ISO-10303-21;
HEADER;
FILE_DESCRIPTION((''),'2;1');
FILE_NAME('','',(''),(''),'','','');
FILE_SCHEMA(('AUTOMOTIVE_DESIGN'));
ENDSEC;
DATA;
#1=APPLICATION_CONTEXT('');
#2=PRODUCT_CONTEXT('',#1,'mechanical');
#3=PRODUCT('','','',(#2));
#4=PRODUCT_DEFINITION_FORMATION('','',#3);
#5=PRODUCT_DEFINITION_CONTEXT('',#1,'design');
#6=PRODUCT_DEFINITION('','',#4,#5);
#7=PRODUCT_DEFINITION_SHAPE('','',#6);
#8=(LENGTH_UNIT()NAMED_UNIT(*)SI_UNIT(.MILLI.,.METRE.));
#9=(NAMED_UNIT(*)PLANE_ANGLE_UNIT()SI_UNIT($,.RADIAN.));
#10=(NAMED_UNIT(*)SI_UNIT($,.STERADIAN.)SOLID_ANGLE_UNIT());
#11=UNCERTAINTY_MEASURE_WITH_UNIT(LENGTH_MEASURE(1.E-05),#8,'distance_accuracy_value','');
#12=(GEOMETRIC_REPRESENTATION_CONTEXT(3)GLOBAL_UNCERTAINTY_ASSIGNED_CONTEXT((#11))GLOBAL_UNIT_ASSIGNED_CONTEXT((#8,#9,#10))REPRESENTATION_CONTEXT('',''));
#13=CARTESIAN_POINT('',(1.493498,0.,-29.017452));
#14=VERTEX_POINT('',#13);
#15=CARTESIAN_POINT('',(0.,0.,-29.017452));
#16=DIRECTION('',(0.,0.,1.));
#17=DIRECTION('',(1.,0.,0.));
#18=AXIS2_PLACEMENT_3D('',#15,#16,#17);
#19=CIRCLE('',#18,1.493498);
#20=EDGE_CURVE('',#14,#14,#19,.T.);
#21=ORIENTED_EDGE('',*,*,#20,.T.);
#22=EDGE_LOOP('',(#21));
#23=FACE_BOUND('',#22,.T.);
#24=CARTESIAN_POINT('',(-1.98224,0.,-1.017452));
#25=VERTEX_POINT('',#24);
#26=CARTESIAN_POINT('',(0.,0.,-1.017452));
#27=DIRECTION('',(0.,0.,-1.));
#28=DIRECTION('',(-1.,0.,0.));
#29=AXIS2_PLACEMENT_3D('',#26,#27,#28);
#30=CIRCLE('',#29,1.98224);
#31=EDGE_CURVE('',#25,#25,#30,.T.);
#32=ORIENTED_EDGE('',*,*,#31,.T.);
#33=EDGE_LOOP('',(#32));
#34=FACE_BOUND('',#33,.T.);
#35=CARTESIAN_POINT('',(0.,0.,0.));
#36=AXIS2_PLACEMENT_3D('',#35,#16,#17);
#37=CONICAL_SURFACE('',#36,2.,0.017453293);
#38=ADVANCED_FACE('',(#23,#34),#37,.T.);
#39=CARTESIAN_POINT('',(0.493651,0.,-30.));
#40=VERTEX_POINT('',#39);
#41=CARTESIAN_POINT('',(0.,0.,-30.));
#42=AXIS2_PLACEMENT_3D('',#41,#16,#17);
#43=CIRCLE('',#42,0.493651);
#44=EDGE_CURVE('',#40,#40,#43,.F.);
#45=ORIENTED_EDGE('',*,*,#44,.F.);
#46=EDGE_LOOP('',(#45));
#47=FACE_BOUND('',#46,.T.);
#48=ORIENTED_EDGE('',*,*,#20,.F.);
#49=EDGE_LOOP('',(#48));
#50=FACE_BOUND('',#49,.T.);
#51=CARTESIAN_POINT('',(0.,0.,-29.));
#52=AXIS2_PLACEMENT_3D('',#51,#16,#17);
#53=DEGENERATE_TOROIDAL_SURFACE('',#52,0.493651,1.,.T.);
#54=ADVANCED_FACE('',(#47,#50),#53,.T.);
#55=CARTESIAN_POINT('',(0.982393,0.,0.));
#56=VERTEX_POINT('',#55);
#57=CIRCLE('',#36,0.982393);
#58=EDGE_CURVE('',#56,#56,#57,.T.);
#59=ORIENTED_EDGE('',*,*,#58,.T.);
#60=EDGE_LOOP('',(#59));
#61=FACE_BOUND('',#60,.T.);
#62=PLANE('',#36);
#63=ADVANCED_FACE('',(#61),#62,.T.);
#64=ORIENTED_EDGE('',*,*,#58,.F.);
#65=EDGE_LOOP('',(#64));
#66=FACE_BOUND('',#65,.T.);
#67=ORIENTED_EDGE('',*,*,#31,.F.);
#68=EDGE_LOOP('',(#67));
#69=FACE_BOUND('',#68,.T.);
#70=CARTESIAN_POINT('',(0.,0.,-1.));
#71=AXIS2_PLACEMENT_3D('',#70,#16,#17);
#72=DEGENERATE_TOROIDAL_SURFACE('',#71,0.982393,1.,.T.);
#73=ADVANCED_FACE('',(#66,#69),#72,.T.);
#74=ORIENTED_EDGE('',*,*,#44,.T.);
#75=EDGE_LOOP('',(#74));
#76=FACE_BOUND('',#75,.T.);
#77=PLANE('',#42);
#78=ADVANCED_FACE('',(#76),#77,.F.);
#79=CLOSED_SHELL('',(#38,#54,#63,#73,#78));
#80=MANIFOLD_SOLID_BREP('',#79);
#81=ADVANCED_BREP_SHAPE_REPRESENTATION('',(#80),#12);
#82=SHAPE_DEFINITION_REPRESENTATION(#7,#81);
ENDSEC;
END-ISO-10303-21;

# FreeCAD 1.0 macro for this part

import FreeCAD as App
import Part
import Sketcher

V = App.Vector


def edges_at(feature, points):
    """Names of the edges that pass closest to the given points."""
    edges = feature.Shape.Edges
    near = lambda p: min(range(len(edges)), key=lambda i: edges[i].distToShape(Part.Vertex(*p))[0])
    return sorted({f"Edge{near(p) + 1}" for p in points})


def faces_at(feature, points):
    """Names of the faces that lie closest to the given points."""
    faces = feature.Shape.Faces
    near = lambda p: min(range(len(faces)), key=lambda i: faces[i].distToShape(Part.Vertex(*p))[0])
    return sorted({f"Face{near(p) + 1}" for p in points})

doc = App.newDocument("Part")
params = doc.addObject("Spreadsheet::Sheet", "Params")
for row, (alias, value) in enumerate([
    ("sketch1_diameter", "4 mm"),
    ("pad1_length", "30 mm"),
    ("draft_angle", "1 deg"),
    ("fillet_radius", "1 mm"),
], start=1):
    params.set(f"A{row}", alias)
    params.set(f"B{row}", "=" + value)
    params.setAlias(f"B{row}", alias)

body = doc.addObject("PartDesign::Body", "Body")

# Sketch on XY plane
sketch1 = body.newObject("Sketcher::SketchObject", "Sketch")
sketch1.AttachmentSupport = (doc.getObject("XY_Plane"), [""])
sketch1.MapMode = "FlatFace"
sketch1.addGeometry(Part.Circle(V(0, 0, 0), V(0, 0, 1), 2), False)
sketch1.addConstraint(Sketcher.Constraint("Coincident", 0, 3, -1, 1))
sketch1.addConstraint(Sketcher.Constraint("Diameter", 0, 4.0))
sketch1.setExpression("Constraints[1]", "Params.sketch1_diameter")
pad1 = body.newObject("PartDesign::Pad", "Pad")
pad1.Profile = sketch1
pad1.setExpression("Length", "Params.pad1_length")
pad1.Reversed = True
doc.recompute()

draft = body.newObject("PartDesign::Draft", "Draft")
draft.Base = (pad1, faces_at(pad1, [(-2, 0, -15)]))
draft.NeutralPlane = (doc.getObject("XY_Plane"), [""])
draft.setExpression("Angle", "Params.draft_angle")
draft.Reversed = True
doc.recompute()

fillet = body.newObject("PartDesign::Fillet", "Fillet")
fillet.Base = (draft, edges_at(draft, [(-2, 0, 0), (-1.476, 0, -30)]))
fillet.setExpression("Radius", "Params.fillet_radius")

doc.recompute()
